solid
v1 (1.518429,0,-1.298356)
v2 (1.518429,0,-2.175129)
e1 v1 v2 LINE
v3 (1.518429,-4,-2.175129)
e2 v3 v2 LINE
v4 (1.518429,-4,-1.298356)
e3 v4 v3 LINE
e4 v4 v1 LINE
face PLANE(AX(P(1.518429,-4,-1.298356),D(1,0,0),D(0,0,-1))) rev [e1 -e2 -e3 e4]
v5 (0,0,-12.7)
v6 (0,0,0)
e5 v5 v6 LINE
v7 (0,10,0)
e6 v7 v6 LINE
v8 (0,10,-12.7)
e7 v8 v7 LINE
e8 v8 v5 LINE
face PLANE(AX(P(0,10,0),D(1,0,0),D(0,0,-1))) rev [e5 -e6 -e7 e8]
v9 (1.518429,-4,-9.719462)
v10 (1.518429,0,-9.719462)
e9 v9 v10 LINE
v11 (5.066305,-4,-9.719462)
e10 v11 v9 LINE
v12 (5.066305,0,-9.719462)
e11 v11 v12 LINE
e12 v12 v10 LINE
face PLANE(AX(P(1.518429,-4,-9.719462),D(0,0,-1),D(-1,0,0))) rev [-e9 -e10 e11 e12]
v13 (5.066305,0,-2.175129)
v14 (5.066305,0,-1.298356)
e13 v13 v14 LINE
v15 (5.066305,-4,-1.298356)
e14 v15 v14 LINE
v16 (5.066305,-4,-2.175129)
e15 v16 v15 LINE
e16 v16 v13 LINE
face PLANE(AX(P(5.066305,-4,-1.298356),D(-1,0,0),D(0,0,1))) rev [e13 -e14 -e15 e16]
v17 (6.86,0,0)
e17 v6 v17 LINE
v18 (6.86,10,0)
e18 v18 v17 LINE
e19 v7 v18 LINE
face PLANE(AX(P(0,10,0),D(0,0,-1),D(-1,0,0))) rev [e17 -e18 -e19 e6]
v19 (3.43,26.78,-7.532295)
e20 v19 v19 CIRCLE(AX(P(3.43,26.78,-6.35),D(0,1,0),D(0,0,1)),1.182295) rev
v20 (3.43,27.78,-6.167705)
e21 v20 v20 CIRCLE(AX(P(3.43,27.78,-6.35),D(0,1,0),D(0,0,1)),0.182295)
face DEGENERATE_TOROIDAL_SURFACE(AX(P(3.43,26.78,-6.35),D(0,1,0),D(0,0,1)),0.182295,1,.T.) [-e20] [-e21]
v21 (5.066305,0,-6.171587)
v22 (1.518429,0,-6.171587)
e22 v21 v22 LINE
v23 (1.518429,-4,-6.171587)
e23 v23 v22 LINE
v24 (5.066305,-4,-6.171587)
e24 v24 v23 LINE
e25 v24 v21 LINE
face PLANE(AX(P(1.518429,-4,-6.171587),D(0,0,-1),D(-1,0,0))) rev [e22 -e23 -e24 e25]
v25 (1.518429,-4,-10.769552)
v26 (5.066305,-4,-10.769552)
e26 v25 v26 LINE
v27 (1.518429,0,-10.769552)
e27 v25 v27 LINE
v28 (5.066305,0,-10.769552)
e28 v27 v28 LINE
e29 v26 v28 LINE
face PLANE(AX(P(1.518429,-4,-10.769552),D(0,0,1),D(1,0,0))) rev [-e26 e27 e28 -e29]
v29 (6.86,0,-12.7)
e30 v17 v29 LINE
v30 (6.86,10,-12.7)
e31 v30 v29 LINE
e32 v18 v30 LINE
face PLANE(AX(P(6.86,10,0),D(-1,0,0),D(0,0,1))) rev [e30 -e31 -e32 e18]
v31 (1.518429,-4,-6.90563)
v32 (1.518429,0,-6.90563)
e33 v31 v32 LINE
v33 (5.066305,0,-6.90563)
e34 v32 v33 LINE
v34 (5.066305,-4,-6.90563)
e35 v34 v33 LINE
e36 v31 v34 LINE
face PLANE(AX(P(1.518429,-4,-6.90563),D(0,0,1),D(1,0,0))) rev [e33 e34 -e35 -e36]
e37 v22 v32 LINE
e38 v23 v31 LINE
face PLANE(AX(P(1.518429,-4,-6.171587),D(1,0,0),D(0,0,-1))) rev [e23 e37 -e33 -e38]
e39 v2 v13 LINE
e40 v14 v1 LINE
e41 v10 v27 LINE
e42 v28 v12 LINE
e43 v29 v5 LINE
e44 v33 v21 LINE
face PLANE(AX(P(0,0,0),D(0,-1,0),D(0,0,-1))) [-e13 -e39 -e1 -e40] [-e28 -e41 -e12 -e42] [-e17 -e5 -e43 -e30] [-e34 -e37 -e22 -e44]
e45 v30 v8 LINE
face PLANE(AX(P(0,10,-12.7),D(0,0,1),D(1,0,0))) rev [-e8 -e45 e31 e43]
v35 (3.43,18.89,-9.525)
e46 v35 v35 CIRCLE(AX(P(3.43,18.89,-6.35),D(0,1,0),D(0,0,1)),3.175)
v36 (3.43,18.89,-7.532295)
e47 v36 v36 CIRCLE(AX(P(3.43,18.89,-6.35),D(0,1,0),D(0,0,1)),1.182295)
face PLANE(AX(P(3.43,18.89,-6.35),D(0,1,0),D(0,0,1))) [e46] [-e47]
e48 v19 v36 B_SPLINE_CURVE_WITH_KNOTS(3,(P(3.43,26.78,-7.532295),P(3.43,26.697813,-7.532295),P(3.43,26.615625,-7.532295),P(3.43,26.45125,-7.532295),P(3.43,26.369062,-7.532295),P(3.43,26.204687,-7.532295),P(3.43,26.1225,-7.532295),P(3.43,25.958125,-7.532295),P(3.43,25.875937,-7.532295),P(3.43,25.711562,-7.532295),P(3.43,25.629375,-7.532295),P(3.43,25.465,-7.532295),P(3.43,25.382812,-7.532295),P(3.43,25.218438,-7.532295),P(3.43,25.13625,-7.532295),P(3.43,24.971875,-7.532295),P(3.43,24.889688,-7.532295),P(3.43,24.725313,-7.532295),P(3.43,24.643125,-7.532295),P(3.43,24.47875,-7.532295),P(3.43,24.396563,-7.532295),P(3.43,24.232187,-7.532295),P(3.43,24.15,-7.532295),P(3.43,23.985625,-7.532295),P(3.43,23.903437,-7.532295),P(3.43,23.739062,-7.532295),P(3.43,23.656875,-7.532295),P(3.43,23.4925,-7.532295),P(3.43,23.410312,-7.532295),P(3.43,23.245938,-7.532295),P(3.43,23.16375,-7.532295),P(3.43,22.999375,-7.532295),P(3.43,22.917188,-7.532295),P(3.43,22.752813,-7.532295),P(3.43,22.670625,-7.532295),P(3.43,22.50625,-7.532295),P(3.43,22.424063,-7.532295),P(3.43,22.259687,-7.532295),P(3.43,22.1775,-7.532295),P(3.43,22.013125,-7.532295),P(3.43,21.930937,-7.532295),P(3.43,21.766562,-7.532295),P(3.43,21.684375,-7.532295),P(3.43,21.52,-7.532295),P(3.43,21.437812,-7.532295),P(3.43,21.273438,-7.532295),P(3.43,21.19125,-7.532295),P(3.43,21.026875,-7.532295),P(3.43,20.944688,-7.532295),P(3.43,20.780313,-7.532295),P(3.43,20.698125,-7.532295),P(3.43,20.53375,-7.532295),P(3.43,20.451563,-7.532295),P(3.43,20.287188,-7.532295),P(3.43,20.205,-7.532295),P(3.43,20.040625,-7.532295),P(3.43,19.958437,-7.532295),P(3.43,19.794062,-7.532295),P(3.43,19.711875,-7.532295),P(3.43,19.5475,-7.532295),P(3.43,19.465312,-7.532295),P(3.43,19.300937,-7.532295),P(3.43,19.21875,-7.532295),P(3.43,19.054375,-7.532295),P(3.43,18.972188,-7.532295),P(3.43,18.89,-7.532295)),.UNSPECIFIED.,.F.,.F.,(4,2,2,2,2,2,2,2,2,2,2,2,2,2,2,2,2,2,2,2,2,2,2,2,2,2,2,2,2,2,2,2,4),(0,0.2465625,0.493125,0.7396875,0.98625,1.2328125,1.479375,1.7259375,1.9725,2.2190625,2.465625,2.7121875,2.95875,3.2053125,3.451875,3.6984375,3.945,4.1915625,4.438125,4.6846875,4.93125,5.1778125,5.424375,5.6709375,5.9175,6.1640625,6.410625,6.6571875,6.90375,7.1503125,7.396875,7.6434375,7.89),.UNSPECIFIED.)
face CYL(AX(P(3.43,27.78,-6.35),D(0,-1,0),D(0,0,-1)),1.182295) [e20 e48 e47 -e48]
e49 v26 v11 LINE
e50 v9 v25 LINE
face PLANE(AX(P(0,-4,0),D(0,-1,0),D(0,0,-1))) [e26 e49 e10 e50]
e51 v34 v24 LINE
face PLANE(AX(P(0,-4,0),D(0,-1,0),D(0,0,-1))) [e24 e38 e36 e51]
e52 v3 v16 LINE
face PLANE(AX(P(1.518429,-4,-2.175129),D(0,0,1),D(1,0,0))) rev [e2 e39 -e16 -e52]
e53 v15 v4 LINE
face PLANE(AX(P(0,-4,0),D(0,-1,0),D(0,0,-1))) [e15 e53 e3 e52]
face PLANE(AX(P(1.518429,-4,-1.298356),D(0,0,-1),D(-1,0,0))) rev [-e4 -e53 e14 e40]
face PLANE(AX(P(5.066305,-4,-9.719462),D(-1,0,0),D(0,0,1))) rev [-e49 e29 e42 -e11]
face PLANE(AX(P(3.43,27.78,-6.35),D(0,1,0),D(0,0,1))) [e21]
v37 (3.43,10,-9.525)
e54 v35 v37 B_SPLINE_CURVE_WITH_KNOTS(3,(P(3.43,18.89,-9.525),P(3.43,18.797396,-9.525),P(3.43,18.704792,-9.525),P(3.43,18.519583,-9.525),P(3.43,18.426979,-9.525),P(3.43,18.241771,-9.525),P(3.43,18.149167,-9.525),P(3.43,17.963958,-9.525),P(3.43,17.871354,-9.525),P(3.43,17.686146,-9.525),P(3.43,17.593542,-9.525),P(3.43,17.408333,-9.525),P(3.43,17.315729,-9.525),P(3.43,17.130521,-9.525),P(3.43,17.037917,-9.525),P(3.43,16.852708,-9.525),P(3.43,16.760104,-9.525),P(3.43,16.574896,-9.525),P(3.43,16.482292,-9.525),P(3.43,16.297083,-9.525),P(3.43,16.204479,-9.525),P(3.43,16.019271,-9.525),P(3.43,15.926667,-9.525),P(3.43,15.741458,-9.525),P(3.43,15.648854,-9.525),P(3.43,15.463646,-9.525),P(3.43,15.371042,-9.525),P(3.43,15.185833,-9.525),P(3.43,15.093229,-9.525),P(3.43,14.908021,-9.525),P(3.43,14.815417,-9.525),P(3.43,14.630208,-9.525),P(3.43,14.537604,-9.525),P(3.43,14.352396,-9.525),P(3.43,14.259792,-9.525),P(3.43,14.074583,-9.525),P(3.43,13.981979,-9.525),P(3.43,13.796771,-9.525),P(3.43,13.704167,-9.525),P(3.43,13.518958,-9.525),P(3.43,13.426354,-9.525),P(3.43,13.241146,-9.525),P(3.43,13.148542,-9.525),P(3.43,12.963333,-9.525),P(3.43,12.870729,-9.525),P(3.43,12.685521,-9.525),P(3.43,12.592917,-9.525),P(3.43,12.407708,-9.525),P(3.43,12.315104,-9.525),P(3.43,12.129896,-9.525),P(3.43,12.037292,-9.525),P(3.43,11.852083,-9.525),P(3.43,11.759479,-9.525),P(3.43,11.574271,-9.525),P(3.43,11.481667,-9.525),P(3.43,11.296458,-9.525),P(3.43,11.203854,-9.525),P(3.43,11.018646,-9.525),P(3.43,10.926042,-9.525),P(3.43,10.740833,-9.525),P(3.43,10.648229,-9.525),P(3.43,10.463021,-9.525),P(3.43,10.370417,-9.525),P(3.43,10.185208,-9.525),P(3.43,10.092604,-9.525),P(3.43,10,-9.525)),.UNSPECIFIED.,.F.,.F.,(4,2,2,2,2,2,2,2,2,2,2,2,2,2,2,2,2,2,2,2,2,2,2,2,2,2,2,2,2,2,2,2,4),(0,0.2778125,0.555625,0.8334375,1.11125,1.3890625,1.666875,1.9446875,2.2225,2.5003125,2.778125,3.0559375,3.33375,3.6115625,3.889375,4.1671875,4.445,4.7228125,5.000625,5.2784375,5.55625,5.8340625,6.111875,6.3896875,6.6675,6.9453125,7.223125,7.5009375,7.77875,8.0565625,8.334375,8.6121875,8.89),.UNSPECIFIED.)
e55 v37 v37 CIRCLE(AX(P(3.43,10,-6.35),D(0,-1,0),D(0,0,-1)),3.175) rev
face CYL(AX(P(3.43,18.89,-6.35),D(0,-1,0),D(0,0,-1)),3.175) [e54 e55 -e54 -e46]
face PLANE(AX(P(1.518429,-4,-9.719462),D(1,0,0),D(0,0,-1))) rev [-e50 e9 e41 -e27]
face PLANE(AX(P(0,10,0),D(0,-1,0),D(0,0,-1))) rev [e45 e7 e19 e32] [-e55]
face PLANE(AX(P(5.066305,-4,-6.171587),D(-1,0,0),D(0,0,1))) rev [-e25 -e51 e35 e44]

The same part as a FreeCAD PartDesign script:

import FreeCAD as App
import Part
import Sketcher

V = App.Vector
Q = App.Units.Quantity


def edges_at(feature, points):
    """Names of the edges that pass closest to the given points."""
    edges = feature.Shape.Edges
    near = lambda p: min(range(len(edges)), key=lambda i: edges[i].distToShape(Part.Vertex(*p))[0])
    return sorted({f"Edge{near(p) + 1}" for p in points})


def add_polygon(sketch, points):
    """Adds a closed chain of lines whose ends are joined by coincident constraints."""
    first, n = sketch.GeometryCount, len(points)
    for a, b in zip(points, points[1:] + points[:1]):
        sketch.addGeometry(Part.LineSegment(App.Vector(*a, 0), App.Vector(*b, 0)), False)
    for i in range(n):
        sketch.addConstraint(Sketcher.Constraint("Coincident", first + i, 2, first + (i + 1) % n, 1))

doc = App.newDocument("Part")
params = doc.addObject("Spreadsheet::Sheet", "Params")
for row, (alias, value) in enumerate([
    ("sketch1_height", "12.7 mm"),
    ("sketch1_width", "6.86 mm"),
    ("pad1_length", "10 mm"),
    ("pad2_length", "4 mm"),
    ("sketch3_diameter", "6.35 mm"),
    ("pad3_length", "8.89 mm"),
    ("pad4_length", "8.89 mm"),
    ("fillet_radius", "1 mm"),
], start=1):
    params.set(f"A{row}", alias)
    params.set(f"B{row}", "=" + value)
    params.setAlias(f"B{row}", alias)

body = doc.addObject("PartDesign::Body", "Body")

# Sketch on XZ plane
sketch1 = body.newObject("Sketcher::SketchObject", "Sketch")
sketch1.AttachmentSupport = (doc.getObject("XZ_Plane"), [""])
sketch1.MapMode = "FlatFace"
add_polygon(sketch1, [(0, -13), (0, 0), (7, 0), (7, -13)])  # lines 0-3
sketch1.addConstraint([
    Sketcher.Constraint("Vertical", 0),
    Sketcher.Constraint("Horizontal", 1),
    Sketcher.Constraint("Vertical", 2),
    Sketcher.Constraint("Horizontal", 3),
    Sketcher.Constraint("Coincident", 0, 2, -1, 1),
    Sketcher.Constraint("DistanceY", 0, 1, 0, 2, Q("12.7 mm")),
    Sketcher.Constraint("DistanceX", 1, 1, 1, 2, Q("6.86 mm")),
])
sketch1.setExpression("Constraints[9]", "Params.sketch1_height")
sketch1.setExpression("Constraints[10]", "Params.sketch1_width")
pad1 = body.newObject("PartDesign::Pad", "Pad")
pad1.Profile = sketch1
pad1.setExpression("Length", "Params.pad1_length")
pad1.Reversed = True

# Sketch on XZ plane
sketch2 = body.newObject("Sketcher::SketchObject", "Sketch001")
sketch2.AttachmentSupport = (doc.getObject("XZ_Plane"), [""])
sketch2.MapMode = "FlatFace"
add_polygon(sketch2, [(1.5, -6.2), (1.5, -6.9), (5.1, -6.9), (5.1, -6.2)])  # lines 0-3
add_polygon(sketch2, [(1.5, -1.3), (1.5, -2.2), (5.1, -2.2), (5.1, -1.3)])  # lines 4-7
add_polygon(sketch2, [(1.5, -9.7), (1.5, -10.8), (5.1, -10.8), (5.1, -9.7)])  # lines 8-11
sketch2.addConstraint([
    Sketcher.Constraint("Vertical", 0),
    Sketcher.Constraint("Horizontal", 1),
    Sketcher.Constraint("Vertical", 2),
    Sketcher.Constraint("Horizontal", 3),
    Sketcher.Constraint("Vertical", 4),
    Sketcher.Constraint("Horizontal", 5),
    Sketcher.Constraint("Vertical", 6),
    Sketcher.Constraint("Horizontal", 7),
    Sketcher.Constraint("Vertical", 8),
    Sketcher.Constraint("Horizontal", 9),
    Sketcher.Constraint("Vertical", 10),
    Sketcher.Constraint("Horizontal", 11),
    Sketcher.Constraint("Vertical", 3, 2, 4, 2),
    Sketcher.Constraint("Vertical", 2, 2, 5, 2),
    Sketcher.Constraint("Vertical", 7, 2, 8, 2),
    Sketcher.Constraint("Vertical", 6, 2, 9, 2),
    Sketcher.Constraint("DistanceY", 8, 2, 8, 1, Q("1.05009 mm")),
    Sketcher.Constraint("DistanceY", 0, 2, 4, 2, Q("4.7305 mm")),
    Sketcher.Constraint("DistanceX", 1, 1, 1, 2, Q("3.547875 mm")),
    Sketcher.Constraint("DistanceY", 0, 2, 0, 1, Q("0.734043 mm")),
    Sketcher.Constraint("DistanceY", 4, 2, 4, 1, Q("0.876774 mm")),
    Sketcher.Constraint("DistanceX", -1, 1, 0, 2, Q("1.518429 mm")),
    Sketcher.Constraint("DistanceY", 0, 2, -1, 1, Q("6.90563 mm")),
    Sketcher.Constraint("DistanceY", 8, 2, -1, 1, Q("10.769552 mm")),
])
pad2 = body.newObject("PartDesign::Pad", "Pad001")
pad2.Profile = sketch2
pad2.setExpression("Length", "Params.pad2_length")

# Sketch on XZ plane
sketch3 = body.newObject("Sketcher::SketchObject", "Sketch002")
sketch3.AttachmentSupport = (doc.getObject("XZ_Plane"), [""])
sketch3.MapMode = "FlatFace"
sketch3.AttachmentOffset = App.Placement(V(0, 0, -10), App.Rotation())
sketch3.addGeometry(Part.Circle(V(3.4, -6.3, 0), V(0, 0, 1), 3.2), False)
sketch3.addConstraint([
    Sketcher.Constraint("Diameter", 0, Q("6.35 mm")),
    Sketcher.Constraint("DistanceX", -1, 1, 0, 3, Q("3.43 mm")),
    Sketcher.Constraint("DistanceY", 0, 3, -1, 1, Q("6.35 mm")),
])
sketch3.setExpression("Constraints[0]", "Params.sketch3_diameter")
pad3 = body.newObject("PartDesign::Pad", "Pad002")
pad3.Profile = sketch3
pad3.setExpression("Length", "Params.pad3_length")
pad3.Reversed = True

# Sketch on XZ plane
sketch4 = body.newObject("Sketcher::SketchObject", "Sketch003")
sketch4.AttachmentSupport = (doc.getObject("XZ_Plane"), [""])
sketch4.MapMode = "FlatFace"
sketch4.AttachmentOffset = App.Placement(V(0, 0, -18.89), App.Rotation())
sketch4.addGeometry(Part.Circle(V(3.4, -6.3, 0), V(0, 0, 1), 1.2), False)
sketch4.addConstraint([
    Sketcher.Constraint("Diameter", 0, Q("2.364591 mm")),
    Sketcher.Constraint("DistanceX", -1, 1, 0, 3, Q("3.43 mm")),
    Sketcher.Constraint("DistanceY", 0, 3, -1, 1, Q("6.35 mm")),
])
pad4 = body.newObject("PartDesign::Pad", "Pad003")
pad4.Profile = sketch4
pad4.setExpression("Length", "Params.pad4_length")
pad4.Reversed = True
doc.recompute()

fillet = body.newObject("PartDesign::Fillet", "Fillet")
fillet.Base = (pad4, edges_at(pad4, [(3.43, 27.78, -5.168)]))
fillet.setExpression("Radius", "Params.fillet_radius")

doc.recompute()
